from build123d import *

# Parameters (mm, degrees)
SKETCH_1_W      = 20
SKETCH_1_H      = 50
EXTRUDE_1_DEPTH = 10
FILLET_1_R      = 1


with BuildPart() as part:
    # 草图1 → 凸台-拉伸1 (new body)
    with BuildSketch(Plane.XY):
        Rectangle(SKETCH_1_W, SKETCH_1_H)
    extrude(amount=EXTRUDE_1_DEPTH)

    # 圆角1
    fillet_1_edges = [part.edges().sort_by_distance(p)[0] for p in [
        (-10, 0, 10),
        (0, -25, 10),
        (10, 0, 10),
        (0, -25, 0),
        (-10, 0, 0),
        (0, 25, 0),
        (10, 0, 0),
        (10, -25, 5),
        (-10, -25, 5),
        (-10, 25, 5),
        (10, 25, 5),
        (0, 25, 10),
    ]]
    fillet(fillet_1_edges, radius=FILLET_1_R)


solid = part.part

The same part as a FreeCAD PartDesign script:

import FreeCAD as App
import Part
import Sketcher


def add_polygon(sketch, points):
    """Adds a closed chain of lines whose ends are joined by coincident constraints."""
    first, n = sketch.GeometryCount, len(points)
    for a, b in zip(points, points[1:] + points[:1]):
        sketch.addGeometry(Part.LineSegment(App.Vector(*a, 0), App.Vector(*b, 0)), False)
    for i in range(n):
        sketch.addConstraint(Sketcher.Constraint("Coincident", first + i, 2, first + (i + 1) % n, 1))

doc = App.newDocument("Part")
body = doc.addObject("PartDesign::Body", "Body")

# Sketch on XY plane
sketch1 = body.newObject("Sketcher::SketchObject", "Sketch")
sketch1.AttachmentSupport = (doc.getObject("XY_Plane"), [""])
sketch1.MapMode = "FlatFace"
add_polygon(sketch1, [(-10, 25), (-10, -25), (10, -25), (10, 25)])  # lines 0-3
sketch1.addConstraint([
    Sketcher.Constraint("Vertical", 0),
    Sketcher.Constraint("Horizontal", 1),
    Sketcher.Constraint("Vertical", 2),
    Sketcher.Constraint("Horizontal", 3),
    Sketcher.Constraint("Symmetric", 0, 2, 2, 2, -1, 1),
    Sketcher.Constraint("DistanceX", 1, 1, 1, 2, 20.0),
    Sketcher.Constraint("DistanceY", 0, 2, 0, 1, 50.0),
])
pad1 = body.newObject("PartDesign::Pad", "Pad")
pad1.Profile = sketch1
pad1.Length = 10
doc.recompute()

fillet = body.newObject("PartDesign::Fillet", "Fillet")
fillet.Base = (pad1, ["Edge1"])
fillet.UseAllEdges = True
fillet.Radius = 1

doc.recompute()
